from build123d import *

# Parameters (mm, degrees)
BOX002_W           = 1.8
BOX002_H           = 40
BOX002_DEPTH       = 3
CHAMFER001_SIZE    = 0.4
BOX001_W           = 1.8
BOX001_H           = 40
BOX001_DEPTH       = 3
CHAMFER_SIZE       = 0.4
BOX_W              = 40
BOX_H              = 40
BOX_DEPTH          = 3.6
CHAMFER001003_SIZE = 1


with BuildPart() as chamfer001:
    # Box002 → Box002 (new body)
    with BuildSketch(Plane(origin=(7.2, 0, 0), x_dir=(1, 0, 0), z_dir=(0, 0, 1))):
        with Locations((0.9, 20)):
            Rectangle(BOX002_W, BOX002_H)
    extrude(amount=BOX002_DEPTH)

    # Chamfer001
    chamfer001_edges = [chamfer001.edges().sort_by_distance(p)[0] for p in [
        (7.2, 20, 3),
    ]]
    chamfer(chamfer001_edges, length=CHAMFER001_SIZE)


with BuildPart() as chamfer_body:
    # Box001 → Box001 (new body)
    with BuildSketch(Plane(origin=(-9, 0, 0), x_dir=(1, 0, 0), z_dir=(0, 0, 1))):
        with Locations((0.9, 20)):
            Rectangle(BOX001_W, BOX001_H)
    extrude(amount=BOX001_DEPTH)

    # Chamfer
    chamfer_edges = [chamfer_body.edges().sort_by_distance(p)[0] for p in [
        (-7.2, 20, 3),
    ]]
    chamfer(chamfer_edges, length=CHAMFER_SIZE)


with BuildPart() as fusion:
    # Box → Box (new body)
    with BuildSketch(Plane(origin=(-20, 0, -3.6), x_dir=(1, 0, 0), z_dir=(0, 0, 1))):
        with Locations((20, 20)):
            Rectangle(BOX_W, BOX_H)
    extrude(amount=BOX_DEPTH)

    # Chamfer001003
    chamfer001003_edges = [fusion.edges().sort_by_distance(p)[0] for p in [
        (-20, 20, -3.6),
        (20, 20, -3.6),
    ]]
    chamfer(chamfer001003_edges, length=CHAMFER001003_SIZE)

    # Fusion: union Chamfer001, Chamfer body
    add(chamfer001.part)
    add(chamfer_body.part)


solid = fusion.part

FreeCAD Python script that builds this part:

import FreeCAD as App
import Part
import Sketcher
Q = App.Units.Quantity


def edges_at(feature, points):
    """Names of the edges that pass closest to the given points."""
    edges = feature.Shape.Edges
    near = lambda p: min(range(len(edges)), key=lambda i: edges[i].distToShape(Part.Vertex(*p))[0])
    return sorted({f"Edge{near(p) + 1}" for p in points})

doc = App.newDocument("Part")
params = doc.addObject("Spreadsheet::Sheet", "Params")
for row, (alias, value) in enumerate([
    ("sketch1_height", "40 mm"),
    ("sketch1_width", "1.8 mm"),
    ("pad1_length", "3 mm"),
    ("chamfer_size", "0.4 mm"),
    ("sketch2_height", "40 mm"),
    ("sketch2_width", "1.8 mm"),
    ("pad2_length", "3 mm"),
    ("chamfer2_size", "0.4 mm"),
    ("sketch3_width", "40 mm"),
    ("pad3_length", "3.6 mm"),
    ("chamfer3_size", "1 mm"),
], start=1):
    params.set(f"A{row}", alias)
    params.set(f"B{row}", "=" + value)
    params.setAlias(f"B{row}", alias)

body = doc.addObject("PartDesign::Body", "Body")

sketch1 = body.newObject("Sketcher::SketchObject", "Sketch")
sketch1.AttachmentSupport = (doc.getObject("XY_Plane"), [""])
sketch1.MapMode = "FlatFace"
sketch1.addGeometry([
    Part.LineSegment(App.Vector(7.2, 40, 0), App.Vector(7.2, 0, 0)),
    Part.LineSegment(App.Vector(7.2, 0, 0), App.Vector(9, 0, 0)),
    Part.LineSegment(App.Vector(9, 0, 0), App.Vector(9, 40, 0)),
    Part.LineSegment(App.Vector(9, 40, 0), App.Vector(7.2, 40, 0)),
], False)
sketch1.addConstraint([
    Sketcher.Constraint("Coincident", 0, 2, 1, 1),
    Sketcher.Constraint("Coincident", 1, 2, 2, 1),
    Sketcher.Constraint("Coincident", 2, 2, 3, 1),
    Sketcher.Constraint("Coincident", 3, 2, 0, 1),
    Sketcher.Constraint("Vertical", 0),
    Sketcher.Constraint("Horizontal", 1),
    Sketcher.Constraint("Vertical", 2),
    Sketcher.Constraint("Horizontal", 3),
    Sketcher.Constraint("PointOnObject", 0, 2, -1),
    Sketcher.Constraint("DistanceY", 0, 2, 0, 1, Q("40 mm")),
    Sketcher.Constraint("DistanceX", 1, 1, 1, 2, Q("1.8 mm")),
    Sketcher.Constraint("DistanceX", -1, 1, 1, 2, Q("9 mm")),
])
sketch1.setExpression("Constraints[9]", "Params.sketch1_height")
sketch1.setExpression("Constraints[10]", "Params.sketch1_width")
pad1 = body.newObject("PartDesign::Pad", "Pad")
pad1.Profile = sketch1
pad1.setExpression("Length", "Params.pad1_length")
doc.recompute()

chamfer = body.newObject("PartDesign::Chamfer", "Chamfer")
chamfer.Base = (pad1, edges_at(pad1, [(7.2, 20, 3)]))
chamfer.setExpression("Size", "Params.chamfer_size")
body2 = doc.addObject("PartDesign::Body", "Body001")

sketch2 = body2.newObject("Sketcher::SketchObject", "Sketch001")
sketch2.AttachmentSupport = (doc.getObject("XY_Plane001"), [""])
sketch2.MapMode = "FlatFace"
sketch2.addGeometry([
    Part.LineSegment(App.Vector(-9, 40, 0), App.Vector(-9, 0, 0)),
    Part.LineSegment(App.Vector(-9, 0, 0), App.Vector(-7.2, 0, 0)),
    Part.LineSegment(App.Vector(-7.2, 0, 0), App.Vector(-7.2, 40, 0)),
    Part.LineSegment(App.Vector(-7.2, 40, 0), App.Vector(-9, 40, 0)),
], False)
sketch2.addConstraint([
    Sketcher.Constraint("Coincident", 0, 2, 1, 1),
    Sketcher.Constraint("Coincident", 1, 2, 2, 1),
    Sketcher.Constraint("Coincident", 2, 2, 3, 1),
    Sketcher.Constraint("Coincident", 3, 2, 0, 1),
    Sketcher.Constraint("Vertical", 0),
    Sketcher.Constraint("Horizontal", 1),
    Sketcher.Constraint("Vertical", 2),
    Sketcher.Constraint("Horizontal", 3),
    Sketcher.Constraint("PointOnObject", 0, 2, -1),
    Sketcher.Constraint("DistanceY", 0, 2, 0, 1, Q("40 mm")),
    Sketcher.Constraint("DistanceX", 1, 1, 1, 2, Q("1.8 mm")),
    Sketcher.Constraint("DistanceX", 0, 2, -1, 1, Q("9 mm")),
])
sketch2.setExpression("Constraints[9]", "Params.sketch2_height")
sketch2.setExpression("Constraints[10]", "Params.sketch2_width")
pad2 = body2.newObject("PartDesign::Pad", "Pad001")
pad2.Profile = sketch2
pad2.setExpression("Length", "Params.pad2_length")
doc.recompute()

chamfer2 = body2.newObject("PartDesign::Chamfer", "Chamfer001")
chamfer2.Base = (pad2, edges_at(pad2, [(-7.2, 20, 3)]))
chamfer2.setExpression("Size", "Params.chamfer2_size")
body3 = doc.addObject("PartDesign::Body", "Body002")

sketch3 = body3.newObject("Sketcher::SketchObject", "Sketch002")
sketch3.AttachmentSupport = (doc.getObject("XY_Plane002"), [""])
sketch3.MapMode = "FlatFace"
sketch3.AttachmentOffset = App.Placement(App.Vector(0, 0, -3.6), App.Rotation())
sketch3.addGeometry([
    Part.LineSegment(App.Vector(-20, 40, 0), App.Vector(-20, 0, 0)),
    Part.LineSegment(App.Vector(-20, 0, 0), App.Vector(20, 0, 0)),
    Part.LineSegment(App.Vector(20, 0, 0), App.Vector(20, 40, 0)),
    Part.LineSegment(App.Vector(20, 40, 0), App.Vector(-20, 40, 0)),
], False)
sketch3.addConstraint([
    Sketcher.Constraint("Coincident", 0, 2, 1, 1),
    Sketcher.Constraint("Coincident", 1, 2, 2, 1),
    Sketcher.Constraint("Coincident", 2, 2, 3, 1),
    Sketcher.Constraint("Coincident", 3, 2, 0, 1),
    Sketcher.Constraint("Vertical", 0),
    Sketcher.Constraint("Horizontal", 1),
    Sketcher.Constraint("Vertical", 2),
    Sketcher.Constraint("Horizontal", 3),
    Sketcher.Constraint("Symmetric", 0, 2, 1, 2, -1, 1),
    Sketcher.Constraint("Equal", 3, 0),
    Sketcher.Constraint("DistanceX", 1, 1, 1, 2, Q("40 mm")),
])
sketch3.setExpression("Constraints[10]", "Params.sketch3_width")
pad3 = body3.newObject("PartDesign::Pad", "Pad002")
pad3.Profile = sketch3
pad3.setExpression("Length", "Params.pad3_length")
doc.recompute()

chamfer3 = body3.newObject("PartDesign::Chamfer", "Chamfer002")
chamfer3.Base = (pad3, edges_at(pad3, [(-20, 20, -3.6), (20, 20, -3.6)]))
chamfer3.setExpression("Size", "Params.chamfer3_size")
doc.recompute()

boolean = body3.newObject("PartDesign::Boolean", "Boolean")
boolean.Type = "Fuse"
boolean.addObjects([body])
doc.recompute()

boolean2 = body3.newObject("PartDesign::Boolean", "Boolean001")
boolean2.Type = "Fuse"
boolean2.addObjects([body2])

doc.recompute()
